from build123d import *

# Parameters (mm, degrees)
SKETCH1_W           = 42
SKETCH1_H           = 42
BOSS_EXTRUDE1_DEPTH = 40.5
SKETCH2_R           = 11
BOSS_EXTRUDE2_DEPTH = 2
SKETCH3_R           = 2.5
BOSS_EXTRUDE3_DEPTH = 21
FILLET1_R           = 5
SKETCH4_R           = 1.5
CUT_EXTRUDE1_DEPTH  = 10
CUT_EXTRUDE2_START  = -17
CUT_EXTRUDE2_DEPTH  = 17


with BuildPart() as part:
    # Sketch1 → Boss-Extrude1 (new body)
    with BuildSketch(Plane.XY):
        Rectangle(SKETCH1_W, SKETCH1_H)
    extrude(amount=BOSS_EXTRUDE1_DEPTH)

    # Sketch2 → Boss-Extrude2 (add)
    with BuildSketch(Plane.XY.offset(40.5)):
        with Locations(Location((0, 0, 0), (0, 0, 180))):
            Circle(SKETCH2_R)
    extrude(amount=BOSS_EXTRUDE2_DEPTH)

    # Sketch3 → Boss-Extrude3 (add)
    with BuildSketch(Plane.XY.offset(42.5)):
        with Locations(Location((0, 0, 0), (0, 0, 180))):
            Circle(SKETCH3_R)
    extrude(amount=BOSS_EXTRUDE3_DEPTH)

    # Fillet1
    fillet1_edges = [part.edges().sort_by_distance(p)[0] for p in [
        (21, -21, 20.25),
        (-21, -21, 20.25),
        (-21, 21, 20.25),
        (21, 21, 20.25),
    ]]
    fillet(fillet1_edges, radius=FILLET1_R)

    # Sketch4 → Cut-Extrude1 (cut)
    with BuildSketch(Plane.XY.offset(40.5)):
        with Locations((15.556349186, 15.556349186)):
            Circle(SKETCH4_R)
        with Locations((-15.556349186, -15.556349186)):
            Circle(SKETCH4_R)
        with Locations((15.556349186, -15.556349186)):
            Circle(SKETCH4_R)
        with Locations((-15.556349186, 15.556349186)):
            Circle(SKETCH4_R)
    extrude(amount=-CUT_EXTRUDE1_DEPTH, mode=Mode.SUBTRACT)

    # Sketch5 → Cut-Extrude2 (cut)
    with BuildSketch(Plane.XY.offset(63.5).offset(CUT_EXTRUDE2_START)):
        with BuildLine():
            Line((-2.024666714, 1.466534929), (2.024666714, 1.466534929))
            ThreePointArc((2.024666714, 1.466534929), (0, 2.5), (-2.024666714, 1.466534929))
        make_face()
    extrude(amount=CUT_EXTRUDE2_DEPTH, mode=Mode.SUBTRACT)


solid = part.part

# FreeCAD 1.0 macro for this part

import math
import FreeCAD as App
import Part
import Sketcher

V = App.Vector
Q = App.Units.Quantity


def edges_at(feature, points):
    """Names of the edges that pass closest to the given points."""
    edges = feature.Shape.Edges
    near = lambda p: min(range(len(edges)), key=lambda i: edges[i].distToShape(Part.Vertex(*p))[0])
    return sorted({f"Edge{near(p) + 1}" for p in points})

doc = App.newDocument("Part")
body = doc.addObject("PartDesign::Body", "Body")

sketch1 = doc.addObject("Sketcher::SketchObject", "Sketch")
body.addObject(sketch1)
sketch1.AttachmentSupport = (doc.XY_Plane, [""])
sketch1.MapMode = "FlatFace"
sketch1.addGeometry(Part.LineSegment(V(-21, 21, 0), V(-21, -21, 0)), False)
sketch1.addGeometry(Part.LineSegment(V(-21, -21, 0), V(21, -21, 0)), False)
sketch1.addGeometry(Part.LineSegment(V(21, -21, 0), V(21, 21, 0)), False)
sketch1.addGeometry(Part.LineSegment(V(21, 21, 0), V(-21, 21, 0)), False)
sketch1.addConstraint(Sketcher.Constraint("Coincident", 0, 2, 1, 1))
sketch1.addConstraint(Sketcher.Constraint("Coincident", 1, 2, 2, 1))
sketch1.addConstraint(Sketcher.Constraint("Coincident", 2, 2, 3, 1))
sketch1.addConstraint(Sketcher.Constraint("Coincident", 3, 2, 0, 1))
sketch1.addConstraint(Sketcher.Constraint("Vertical", 0))
sketch1.addConstraint(Sketcher.Constraint("Horizontal", 1))
sketch1.addConstraint(Sketcher.Constraint("Vertical", 2))
sketch1.addConstraint(Sketcher.Constraint("Horizontal", 3))
sketch1.addConstraint(Sketcher.Constraint("Symmetric", 0, 2, 2, 2, -1, 1))
sketch1.addConstraint(Sketcher.Constraint("Equal", 3, 0))
sketch1.addConstraint(Sketcher.Constraint("DistanceX", 1, 1, 1, 2, Q("42 mm")))
pad1 = doc.addObject("PartDesign::Pad", "Pad")
body.addObject(pad1)
pad1.Profile = sketch1
pad1.Length = 40.5

sketch2 = doc.addObject("Sketcher::SketchObject", "Sketch001")
body.addObject(sketch2)
sketch2.AttachmentSupport = (doc.XY_Plane, [""])
sketch2.MapMode = "FlatFace"
sketch2.AttachmentOffset = App.Placement(V(0, 0, 40.5), App.Rotation())
sketch2.addGeometry(Part.Circle(V(0, 0, 0), V(0, 0, 1), 11), False)
sketch2.addConstraint(Sketcher.Constraint("Coincident", 0, 3, -1, 1))
sketch2.addConstraint(Sketcher.Constraint("Diameter", 0, Q("22 mm")))
pad2 = doc.addObject("PartDesign::Pad", "Pad001")
body.addObject(pad2)
pad2.Profile = sketch2
pad2.Length = 2

sketch3 = doc.addObject("Sketcher::SketchObject", "Sketch002")
body.addObject(sketch3)
sketch3.AttachmentSupport = (doc.XY_Plane, [""])
sketch3.MapMode = "FlatFace"
sketch3.AttachmentOffset = App.Placement(V(0, 0, 42.5), App.Rotation())
sketch3.addGeometry(Part.Circle(V(0, 0, 0), V(0, 0, 1), 2.5), False)
sketch3.addConstraint(Sketcher.Constraint("Coincident", 0, 3, -1, 1))
sketch3.addConstraint(Sketcher.Constraint("Diameter", 0, Q("5 mm")))
pad3 = doc.addObject("PartDesign::Pad", "Pad002")
body.addObject(pad3)
pad3.Profile = sketch3
pad3.Length = 21
doc.recompute()

fillet = doc.addObject("PartDesign::Fillet", "Fillet")
body.addObject(fillet)
fillet.Base = (pad3, edges_at(pad3, [
    (21, -21, 20.25),
    (-21, -21, 20.25),
    (-21, 21, 20.25),
    (21, 21, 20.25),
]))
fillet.Radius = 5

sketch4 = doc.addObject("Sketcher::SketchObject", "Sketch003")
body.addObject(sketch4)
sketch4.AttachmentSupport = (doc.XY_Plane, [""])
sketch4.MapMode = "FlatFace"
sketch4.AttachmentOffset = App.Placement(V(0, 0, 40.5), App.Rotation())
sketch4.addGeometry(Part.Circle(V(15.556349, 15.556349, 0), V(0, 0, 1), 1.5), False)
sketch4.addGeometry(Part.Circle(V(-15.556349, -15.556349, 0), V(0, 0, 1), 1.5), False)
sketch4.addGeometry(Part.Circle(V(15.556349, -15.556349, 0), V(0, 0, 1), 1.5), False)
sketch4.addGeometry(Part.Circle(V(-15.556349, 15.556349, 0), V(0, 0, 1), 1.5), False)
sketch4.addConstraint(Sketcher.Constraint("Equal", 0, 1))
sketch4.addConstraint(Sketcher.Constraint("Equal", 1, 2))
sketch4.addConstraint(Sketcher.Constraint("Equal", 2, 3))
sketch4.addConstraint(Sketcher.Constraint("Symmetric", 0, 3, 1, 3, -1, 1))
sketch4.addConstraint(Sketcher.Constraint("Symmetric", 2, 3, 3, 3, -1, 1))
sketch4.addConstraint(Sketcher.Constraint("Symmetric", 1, 3, 2, 3, -2))
sketch4.addConstraint(Sketcher.Constraint("Diameter", 0, Q("3 mm")))
sketch4.addConstraint(Sketcher.Constraint("DistanceX", 1, 3, 0, 3, Q("31.112698 mm")))
sketch4.addConstraint(Sketcher.Constraint("DistanceY", 1, 3, 0, 3, Q("31.112698 mm")))
pocket1 = doc.addObject("PartDesign::Pocket", "Pocket")
body.addObject(pocket1)
pocket1.Profile = sketch4
pocket1.Length = 10

sketch5 = doc.addObject("Sketcher::SketchObject", "Sketch004")
body.addObject(sketch5)
sketch5.AttachmentSupport = (doc.XY_Plane, [""])
sketch5.MapMode = "FlatFace"
sketch5.AttachmentOffset = App.Placement(V(0, 0, 46.5), App.Rotation())
sketch5.addGeometry(Part.LineSegment(V(-2.024667, 1.466535, 0), V(2.024667, 1.466535, 0)), False)
sketch5.addGeometry(Part.ArcOfCircle(Part.Circle(V(0, 0, 0), V(0, 0, 1), 2.5), math.radians(35.917092), math.radians(144.082908)), False)
sketch5.addConstraint(Sketcher.Constraint("Coincident", 0, 1, 1, 2))
sketch5.addConstraint(Sketcher.Constraint("Coincident", 1, 1, 0, 2))
sketch5.addConstraint(Sketcher.Constraint("Horizontal", 0))
sketch5.addConstraint(Sketcher.Constraint("Coincident", 1, 3, -1, 1))
sketch5.addConstraint(Sketcher.Constraint("Radius", 1, Q("2.5 mm")))
sketch5.addConstraint(Sketcher.Constraint("DistanceX", 0, 1, 0, 2, Q("4.049333 mm")))
pocket2 = doc.addObject("PartDesign::Pocket", "Pocket001")
body.addObject(pocket2)
pocket2.Profile = sketch5
pocket2.Length = 17
pocket2.Reversed = True

doc.recompute()
